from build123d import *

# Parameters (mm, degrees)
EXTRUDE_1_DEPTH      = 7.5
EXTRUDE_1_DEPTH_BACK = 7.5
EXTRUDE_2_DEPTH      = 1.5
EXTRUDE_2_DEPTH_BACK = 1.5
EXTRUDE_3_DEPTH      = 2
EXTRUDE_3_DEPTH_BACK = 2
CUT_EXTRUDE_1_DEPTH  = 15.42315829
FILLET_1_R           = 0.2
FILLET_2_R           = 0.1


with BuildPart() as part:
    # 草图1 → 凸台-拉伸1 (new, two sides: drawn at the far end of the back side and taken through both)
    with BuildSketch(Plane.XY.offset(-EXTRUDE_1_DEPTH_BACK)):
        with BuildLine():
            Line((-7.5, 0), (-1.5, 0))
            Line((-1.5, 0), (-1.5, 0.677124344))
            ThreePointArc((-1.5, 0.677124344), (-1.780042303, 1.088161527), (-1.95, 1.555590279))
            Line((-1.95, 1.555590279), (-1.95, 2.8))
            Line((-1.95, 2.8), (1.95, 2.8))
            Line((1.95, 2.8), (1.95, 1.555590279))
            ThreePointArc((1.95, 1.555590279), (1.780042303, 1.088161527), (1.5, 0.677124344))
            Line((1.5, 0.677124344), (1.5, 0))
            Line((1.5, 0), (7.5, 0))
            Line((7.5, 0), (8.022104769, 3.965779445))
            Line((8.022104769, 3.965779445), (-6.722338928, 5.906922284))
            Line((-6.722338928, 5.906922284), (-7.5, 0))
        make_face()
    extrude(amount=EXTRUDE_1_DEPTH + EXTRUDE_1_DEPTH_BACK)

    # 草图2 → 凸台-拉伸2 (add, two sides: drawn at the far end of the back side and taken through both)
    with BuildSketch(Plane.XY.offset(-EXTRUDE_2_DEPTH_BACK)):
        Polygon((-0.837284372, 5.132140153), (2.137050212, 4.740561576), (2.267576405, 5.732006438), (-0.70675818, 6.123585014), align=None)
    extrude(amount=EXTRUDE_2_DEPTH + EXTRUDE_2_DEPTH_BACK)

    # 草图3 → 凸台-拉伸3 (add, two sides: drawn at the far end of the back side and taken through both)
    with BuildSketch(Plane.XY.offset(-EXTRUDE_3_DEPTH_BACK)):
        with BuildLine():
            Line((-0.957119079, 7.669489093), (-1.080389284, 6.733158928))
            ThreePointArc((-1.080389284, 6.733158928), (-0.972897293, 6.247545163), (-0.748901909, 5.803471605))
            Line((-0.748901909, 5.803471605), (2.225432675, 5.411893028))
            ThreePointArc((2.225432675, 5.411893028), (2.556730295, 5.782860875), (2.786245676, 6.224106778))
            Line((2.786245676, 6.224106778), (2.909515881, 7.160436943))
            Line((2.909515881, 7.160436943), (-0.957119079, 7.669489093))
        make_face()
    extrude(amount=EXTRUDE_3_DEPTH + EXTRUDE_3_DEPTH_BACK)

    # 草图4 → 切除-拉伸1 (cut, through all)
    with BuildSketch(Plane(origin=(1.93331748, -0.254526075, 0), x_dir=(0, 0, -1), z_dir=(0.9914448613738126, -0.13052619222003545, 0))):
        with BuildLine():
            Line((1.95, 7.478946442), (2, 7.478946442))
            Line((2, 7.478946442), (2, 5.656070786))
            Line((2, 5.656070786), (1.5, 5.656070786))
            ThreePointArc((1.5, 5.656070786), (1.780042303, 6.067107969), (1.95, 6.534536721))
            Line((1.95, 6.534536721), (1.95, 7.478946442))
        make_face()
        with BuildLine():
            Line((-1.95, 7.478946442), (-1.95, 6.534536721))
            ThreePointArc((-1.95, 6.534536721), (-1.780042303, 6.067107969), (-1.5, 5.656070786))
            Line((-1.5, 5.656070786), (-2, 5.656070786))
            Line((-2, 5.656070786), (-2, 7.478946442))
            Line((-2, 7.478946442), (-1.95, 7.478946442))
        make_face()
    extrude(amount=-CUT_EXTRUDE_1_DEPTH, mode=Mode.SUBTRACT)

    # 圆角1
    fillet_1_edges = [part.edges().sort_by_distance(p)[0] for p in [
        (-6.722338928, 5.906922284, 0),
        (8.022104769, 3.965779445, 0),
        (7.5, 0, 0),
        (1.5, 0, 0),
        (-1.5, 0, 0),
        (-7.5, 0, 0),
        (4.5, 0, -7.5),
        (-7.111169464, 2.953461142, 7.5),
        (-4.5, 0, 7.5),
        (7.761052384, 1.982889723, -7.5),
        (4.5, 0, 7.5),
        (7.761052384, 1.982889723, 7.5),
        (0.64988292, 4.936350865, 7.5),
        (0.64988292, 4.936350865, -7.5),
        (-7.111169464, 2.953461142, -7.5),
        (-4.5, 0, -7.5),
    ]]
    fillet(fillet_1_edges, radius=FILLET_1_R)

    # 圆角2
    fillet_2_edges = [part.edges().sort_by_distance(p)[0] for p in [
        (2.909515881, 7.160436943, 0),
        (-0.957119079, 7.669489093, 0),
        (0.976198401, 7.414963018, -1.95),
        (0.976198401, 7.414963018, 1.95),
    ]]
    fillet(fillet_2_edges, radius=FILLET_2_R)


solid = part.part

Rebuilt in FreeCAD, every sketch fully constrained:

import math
import FreeCAD as App
import Part
import Sketcher
Q = App.Units.Quantity


def edges_at(feature, points):
    """Names of the edges that pass closest to the given points."""
    edges = feature.Shape.Edges
    near = lambda p: min(range(len(edges)), key=lambda i: edges[i].distToShape(Part.Vertex(*p))[0])
    return sorted({f"Edge{near(p) + 1}" for p in points})

doc = App.newDocument("Part")
params = doc.addObject("Spreadsheet::Sheet", "Params")
for row, (alias, value) in enumerate([
    ("sketch1_radius", "2 mm"),
    ("sketch1_width", "6 mm"),
    ("sketch1_length", "4 mm"),
    ("sketch1_width2", "3.9 mm"),
    ("pad1_length", "7.5 mm"),
    ("pad1_length2", "7.5 mm"),
    ("sketch2_length", "3 mm"),
    ("sketch2_length2", "1 mm"),
    ("pad2_length", "1.5 mm"),
    ("pad2_length2", "1.5 mm"),
    ("sketch3_radius", "2 mm"),
    ("sketch3_length", "3 mm"),
    ("sketch3_length2", "3.9 mm"),
    ("pad3_length", "2 mm"),
    ("pad3_length2", "2 mm"),
    ("sketch4_radius", "2 mm"),
    ("sketch4_width", "0.5 mm"),
    ("sketch4_width2", "0.05 mm"),
    ("fillet_radius", "0.2 mm"),
    ("fillet2_radius", "0.1 mm"),
], start=1):
    params.set(f"A{row}", alias)
    params.set(f"B{row}", "=" + value)
    params.setAlias(f"B{row}", alias)

body = doc.addObject("PartDesign::Body", "Body")

sketch1 = body.newObject("Sketcher::SketchObject", "Sketch")
sketch1.AttachmentSupport = (doc.getObject("XY_Plane"), [""])
sketch1.MapMode = "FlatFace"
sketch1.addGeometry(Part.LineSegment(App.Vector(-7.5, 0, 0), App.Vector(-1.5, 0, 0)), False)
sketch1.addGeometry(Part.LineSegment(App.Vector(-1.5, 0, 0), App.Vector(-1.5, 0.677124, 0)), False)
sketch1.addGeometry(Part.ArcOfCircle(Part.Circle(App.Vector(0, 2, 0), App.Vector(0, 0, 1), 2), math.radians(-167.161432), math.radians(-138.590378)), False)
sketch1.addGeometry(Part.LineSegment(App.Vector(-1.95, 1.55559, 0), App.Vector(-1.95, 2.8, 0)), False)
sketch1.addGeometry(Part.LineSegment(App.Vector(-1.95, 2.8, 0), App.Vector(1.95, 2.8, 0)), False)
sketch1.addGeometry(Part.LineSegment(App.Vector(1.95, 2.8, 0), App.Vector(1.95, 1.55559, 0)), False)
sketch1.addGeometry(Part.ArcOfCircle(Part.Circle(App.Vector(0, 2, 0), App.Vector(0, 0, 1), 2), math.radians(-41.409622), math.radians(-12.838568)), False)
sketch1.addGeometry(Part.LineSegment(App.Vector(1.5, 0.677124, 0), App.Vector(1.5, 0, 0)), False)
sketch1.addGeometry(Part.LineSegment(App.Vector(1.5, 0, 0), App.Vector(7.5, 0, 0)), False)
sketch1.addGeometry(Part.LineSegment(App.Vector(7.5, 0, 0), App.Vector(8.022105, 3.965779, 0)), False)
sketch1.addGeometry(Part.LineSegment(App.Vector(8.022105, 3.965779, 0), App.Vector(-6.722339, 5.906922, 0)), False)
sketch1.addGeometry(Part.LineSegment(App.Vector(-6.722339, 5.906922, 0), App.Vector(-7.5, 0, 0)), False)
sketch1.addConstraint(Sketcher.Constraint("Coincident", 0, 2, 1, 1))
sketch1.addConstraint(Sketcher.Constraint("Coincident", 1, 2, 2, 2))
sketch1.addConstraint(Sketcher.Constraint("Coincident", 2, 1, 3, 1))
sketch1.addConstraint(Sketcher.Constraint("Coincident", 3, 2, 4, 1))
sketch1.addConstraint(Sketcher.Constraint("Coincident", 4, 2, 5, 1))
sketch1.addConstraint(Sketcher.Constraint("Coincident", 5, 2, 6, 2))
sketch1.addConstraint(Sketcher.Constraint("Coincident", 6, 1, 7, 1))
sketch1.addConstraint(Sketcher.Constraint("Coincident", 7, 2, 8, 1))
sketch1.addConstraint(Sketcher.Constraint("Coincident", 8, 2, 9, 1))
sketch1.addConstraint(Sketcher.Constraint("Coincident", 9, 2, 10, 1))
sketch1.addConstraint(Sketcher.Constraint("Coincident", 10, 2, 11, 1))
sketch1.addConstraint(Sketcher.Constraint("Coincident", 11, 2, 0, 1))
sketch1.addConstraint(Sketcher.Constraint("Horizontal", 0))
sketch1.addConstraint(Sketcher.Constraint("Vertical", 1))
sketch1.addConstraint(Sketcher.Constraint("Vertical", 3))
sketch1.addConstraint(Sketcher.Constraint("Horizontal", 4))
sketch1.addConstraint(Sketcher.Constraint("Vertical", 5))
sketch1.addConstraint(Sketcher.Constraint("Vertical", 7))
sketch1.addConstraint(Sketcher.Constraint("Horizontal", 8))
sketch1.addConstraint(Sketcher.Constraint("Coincident", 6, 3, 2, 3))
sketch1.addConstraint(Sketcher.Constraint("Equal", 2, 6))
sketch1.addConstraint(Sketcher.Constraint("Symmetric", 0, 2, 7, 2, -1, 1))
sketch1.addConstraint(Sketcher.Constraint("Symmetric", 2, 1, 5, 2, -2))
sketch1.addConstraint(Sketcher.Constraint("Symmetric", 8, 2, 11, 2, -2))
sketch1.addConstraint(Sketcher.Constraint("Perpendicular", 9, 10))
sketch1.addConstraint(Sketcher.Constraint("Perpendicular", 10, 11))
sketch1.addConstraint(Sketcher.Constraint("Radius", 2, 2.0))
sketch1.addConstraint(Sketcher.Constraint("DistanceX", 0, 1, 0, 2, 6.0))
sketch1.addConstraint(Sketcher.Constraint("Distance", 9, 4.0))
sketch1.addConstraint(Sketcher.Constraint("DistanceX", 4, 1, 4, 2, 3.9))
sketch1.addConstraint(Sketcher.Constraint("DistanceY", -1, 1, 2, 3, 2.0))
sketch1.addConstraint(Sketcher.Constraint("Angle", 9, Q("82.5 deg")))
sketch1.addConstraint(Sketcher.Constraint("DistanceX", 1, 2, 6, 1, 3.0))
sketch1.addConstraint(Sketcher.Constraint("DistanceY", -1, 1, 3, 2, 2.8))
sketch1.setExpression("Constraints[26]", "Params.sketch1_radius")
sketch1.setExpression("Constraints[27]", "Params.sketch1_width")
sketch1.setExpression("Constraints[28]", "Params.sketch1_length")
sketch1.setExpression("Constraints[29]", "Params.sketch1_width2")
pad1 = body.newObject("PartDesign::Pad", "Pad")
pad1.Profile = sketch1
pad1.Type = "TwoLengths"
pad1.setExpression("Length", "Params.pad1_length")
pad1.setExpression("Length2", "Params.pad1_length2")

sketch2 = body.newObject("Sketcher::SketchObject", "Sketch001")
sketch2.AttachmentSupport = (doc.getObject("XY_Plane"), [""])
sketch2.MapMode = "FlatFace"
sketch2.addGeometry(Part.LineSegment(App.Vector(-0.837284, 5.13214, 0), App.Vector(2.13705, 4.740562, 0)), False)
sketch2.addGeometry(Part.LineSegment(App.Vector(2.13705, 4.740562, 0), App.Vector(2.267576, 5.732006, 0)), False)
sketch2.addGeometry(Part.LineSegment(App.Vector(2.267576, 5.732006, 0), App.Vector(-0.706758, 6.123585, 0)), False)
sketch2.addGeometry(Part.LineSegment(App.Vector(-0.706758, 6.123585, 0), App.Vector(-0.837284, 5.13214, 0)), False)
sketch2.addConstraint(Sketcher.Constraint("Coincident", 0, 2, 1, 1))
sketch2.addConstraint(Sketcher.Constraint("Coincident", 1, 2, 2, 1))
sketch2.addConstraint(Sketcher.Constraint("Coincident", 2, 2, 3, 1))
sketch2.addConstraint(Sketcher.Constraint("Coincident", 3, 2, 0, 1))
sketch2.addConstraint(Sketcher.Constraint("Perpendicular", 0, 1))
sketch2.addConstraint(Sketcher.Constraint("Perpendicular", 1, 2))
sketch2.addConstraint(Sketcher.Constraint("Perpendicular", 2, 3))
sketch2.addConstraint(Sketcher.Constraint("Distance", 0, 3.0))
sketch2.addConstraint(Sketcher.Constraint("Distance", 1, 1.0))
sketch2.addConstraint(Sketcher.Constraint("Angle", 0, Q("-7.5 deg")))
sketch2.addConstraint(Sketcher.Constraint("DistanceX", -1, 1, 0, 2, 2.13705))
sketch2.addConstraint(Sketcher.Constraint("DistanceY", -1, 1, 0, 2, 4.740562))
sketch2.setExpression("Constraints[7]", "Params.sketch2_length")
sketch2.setExpression("Constraints[8]", "Params.sketch2_length2")
pad2 = body.newObject("PartDesign::Pad", "Pad001")
pad2.Profile = sketch2
pad2.Type = "TwoLengths"
pad2.setExpression("Length", "Params.pad2_length")
pad2.setExpression("Length2", "Params.pad2_length2")

sketch3 = body.newObject("Sketcher::SketchObject", "Sketch002")
sketch3.AttachmentSupport = (doc.getObject("XY_Plane"), [""])
sketch3.MapMode = "FlatFace"
sketch3.addGeometry(Part.LineSegment(App.Vector(-0.957119, 7.669489, 0), App.Vector(-1.080389, 6.733159, 0)), False)
sketch3.addGeometry(Part.ArcOfCircle(Part.Circle(App.Vector(0.910935, 6.919241, 0), App.Vector(0, 0, 1), 2), math.radians(-174.661432), math.radians(-146.090378)), False)
sketch3.addGeometry(Part.LineSegment(App.Vector(-0.748902, 5.803472, 0), App.Vector(2.225433, 5.411893, 0)), False)
sketch3.addGeometry(Part.ArcOfCircle(Part.Circle(App.Vector(0.910935, 6.919241, 0), App.Vector(0, 0, 1), 2), math.radians(-48.909622), math.radians(-20.338568)), False)
sketch3.addGeometry(Part.LineSegment(App.Vector(2.786246, 6.224107, 0), App.Vector(2.909516, 7.160437, 0)), False)
sketch3.addGeometry(Part.LineSegment(App.Vector(2.909516, 7.160437, 0), App.Vector(-0.957119, 7.669489, 0)), False)
sketch3.addConstraint(Sketcher.Constraint("Coincident", 0, 2, 1, 1))
sketch3.addConstraint(Sketcher.Constraint("Coincident", 1, 2, 2, 1))
sketch3.addConstraint(Sketcher.Constraint("Coincident", 2, 2, 3, 1))
sketch3.addConstraint(Sketcher.Constraint("Coincident", 3, 2, 4, 1))
sketch3.addConstraint(Sketcher.Constraint("Coincident", 4, 2, 5, 1))
sketch3.addConstraint(Sketcher.Constraint("Coincident", 5, 2, 0, 1))
sketch3.addConstraint(Sketcher.Constraint("Coincident", 3, 3, 1, 3))
sketch3.addConstraint(Sketcher.Constraint("Equal", 1, 3))
sketch3.addConstraint(Sketcher.Constraint("Perpendicular", 0, 2))
sketch3.addConstraint(Sketcher.Constraint("Perpendicular", 2, 4))
sketch3.addConstraint(Sketcher.Constraint("Perpendicular", 4, 5))
sketch3.addConstraint(Sketcher.Constraint("Equal", 0, 4))
sketch3.addConstraint(Sketcher.Constraint("Radius", 1, 2.0))
sketch3.addConstraint(Sketcher.Constraint("Distance", 2, 3.0))
sketch3.addConstraint(Sketcher.Constraint("Angle", 0, Q("-97.5 deg")))
sketch3.addConstraint(Sketcher.Constraint("Distance", 5, 3.9))
sketch3.addConstraint(Sketcher.Constraint("DistanceX", 1, 2, -1, 1, 0.748902))
sketch3.addConstraint(Sketcher.Constraint("Distance", 0, 0.94441))
sketch3.addConstraint(Sketcher.Constraint("DistanceY", -1, 1, 1, 3, 6.919241))
sketch3.setExpression("Constraints[12]", "Params.sketch3_radius")
sketch3.setExpression("Constraints[13]", "Params.sketch3_length")
sketch3.setExpression("Constraints[15]", "Params.sketch3_length2")
pad3 = body.newObject("PartDesign::Pad", "Pad002")
pad3.Profile = sketch3
pad3.Type = "TwoLengths"
pad3.setExpression("Length", "Params.pad3_length")
pad3.setExpression("Length2", "Params.pad3_length2")

sketch4 = body.newObject("Sketcher::SketchObject", "Sketch003")
sketch4.Placement = App.Placement(App.Vector(1.933317, -0.254526, 0), App.Rotation(App.Vector(0, 0, -1), App.Vector(0.130526192, 0.991444861, 0), App.Vector(0.991444861, -0.130526192, 0), "ZXY"))
sketch4.addGeometry(Part.LineSegment(App.Vector(2, 7.478946, 0), App.Vector(1.95, 7.478946, 0)), False)
sketch4.addGeometry(Part.LineSegment(App.Vector(1.95, 7.478946, 0), App.Vector(1.95, 6.534537, 0)), False)
sketch4.addGeometry(Part.ArcOfCircle(Part.Circle(App.Vector(0, 6.978946, 0), App.Vector(0, 0, 1), 2), math.radians(-41.409622), math.radians(-12.838568)), False)
sketch4.addGeometry(Part.LineSegment(App.Vector(1.5, 5.656071, 0), App.Vector(2, 5.656071, 0)), False)
sketch4.addGeometry(Part.LineSegment(App.Vector(2, 5.656071, 0), App.Vector(2, 7.478946, 0)), False)
sketch4.addGeometry(Part.LineSegment(App.Vector(-1.95, 6.534537, 0), App.Vector(-1.95, 7.478946, 0)), False)
sketch4.addGeometry(Part.LineSegment(App.Vector(-1.95, 7.478946, 0), App.Vector(-2, 7.478946, 0)), False)
sketch4.addGeometry(Part.LineSegment(App.Vector(-2, 7.478946, 0), App.Vector(-2, 5.656071, 0)), False)
sketch4.addGeometry(Part.LineSegment(App.Vector(-2, 5.656071, 0), App.Vector(-1.5, 5.656071, 0)), False)
sketch4.addGeometry(Part.ArcOfCircle(Part.Circle(App.Vector(0, 6.978946, 0), App.Vector(0, 0, 1), 2), math.radians(-167.161432), math.radians(-138.590378)), False)
sketch4.addConstraint(Sketcher.Constraint("Coincident", 0, 2, 1, 1))
sketch4.addConstraint(Sketcher.Constraint("Coincident", 1, 2, 2, 2))
sketch4.addConstraint(Sketcher.Constraint("Coincident", 2, 1, 3, 1))
sketch4.addConstraint(Sketcher.Constraint("Coincident", 3, 2, 4, 1))
sketch4.addConstraint(Sketcher.Constraint("Coincident", 4, 2, 0, 1))
sketch4.addConstraint(Sketcher.Constraint("Coincident", 5, 2, 6, 1))
sketch4.addConstraint(Sketcher.Constraint("Coincident", 6, 2, 7, 1))
sketch4.addConstraint(Sketcher.Constraint("Coincident", 7, 2, 8, 1))
sketch4.addConstraint(Sketcher.Constraint("Coincident", 8, 2, 9, 2))
sketch4.addConstraint(Sketcher.Constraint("Coincident", 9, 1, 5, 1))
sketch4.addConstraint(Sketcher.Constraint("Horizontal", 0))
sketch4.addConstraint(Sketcher.Constraint("Vertical", 1))
sketch4.addConstraint(Sketcher.Constraint("Horizontal", 3))
sketch4.addConstraint(Sketcher.Constraint("Vertical", 4))
sketch4.addConstraint(Sketcher.Constraint("Vertical", 5))
sketch4.addConstraint(Sketcher.Constraint("Horizontal", 6))
sketch4.addConstraint(Sketcher.Constraint("Vertical", 7))
sketch4.addConstraint(Sketcher.Constraint("Horizontal", 8))
sketch4.addConstraint(Sketcher.Constraint("Coincident", 9, 3, 2, 3))
sketch4.addConstraint(Sketcher.Constraint("Equal", 2, 9))
sketch4.addConstraint(Sketcher.Constraint("Symmetric", 0, 2, 5, 2, -2))
sketch4.addConstraint(Sketcher.Constraint("Symmetric", 3, 2, 7, 2, -2))
sketch4.addConstraint(Sketcher.Constraint("PointOnObject", 2, 3, -2))
sketch4.addConstraint(Sketcher.Constraint("Radius", 2, 2.0))
sketch4.addConstraint(Sketcher.Constraint("DistanceX", 3, 1, 3, 2, 0.5))
sketch4.addConstraint(Sketcher.Constraint("DistanceX", -1, 1, 3, 2, 2.0))
sketch4.addConstraint(Sketcher.Constraint("DistanceX", 0, 2, 0, 1, 0.05))
sketch4.addConstraint(Sketcher.Constraint("DistanceY", 2, 3, 0, 2, 0.5))
sketch4.addConstraint(Sketcher.Constraint("DistanceY", -1, 1, 2, 1, 5.656071))
sketch4.setExpression("Constraints[23]", "Params.sketch4_radius")
sketch4.setExpression("Constraints[24]", "Params.sketch4_width")
sketch4.setExpression("Constraints[26]", "Params.sketch4_width2")
pocket1 = body.newObject("PartDesign::Pocket", "Pocket")
pocket1.Profile = sketch4
pocket1.Type = "ThroughAll"
doc.recompute()

fillet = body.newObject("PartDesign::Fillet", "Fillet")
fillet.Base = (pocket1, edges_at(pocket1, [
    (-6.722, 5.907, 0),
    (8.022, 3.966, 0),
    (7.5, 0, 0),
    (1.5, 0, 0),
    (-1.5, 0, 0),
    (-7.5, 0, 0),
    (4.5, 0, -7.5),
    (-7.111, 2.953, 7.5),
    (-4.5, 0, 7.5),
    (7.761, 1.983, -7.5),
    (4.5, 0, 7.5),
    (7.761, 1.983, 7.5),
    (0.65, 4.936, 7.5),
    (0.65, 4.936, -7.5),
    (-7.111, 2.953, -7.5),
    (-4.5, 0, -7.5),
]))
fillet.setExpression("Radius", "Params.fillet_radius")
doc.recompute()

fillet2 = body.newObject("PartDesign::Fillet", "Fillet001")
fillet2.Base = (fillet, edges_at(fillet, [
    (2.91, 7.16, 0),
    (-0.957, 7.669, 0),
    (0.976, 7.415, -1.95),
    (0.976, 7.415, 1.95),
]))
fillet2.setExpression("Radius", "Params.fillet2_radius")

doc.recompute()
